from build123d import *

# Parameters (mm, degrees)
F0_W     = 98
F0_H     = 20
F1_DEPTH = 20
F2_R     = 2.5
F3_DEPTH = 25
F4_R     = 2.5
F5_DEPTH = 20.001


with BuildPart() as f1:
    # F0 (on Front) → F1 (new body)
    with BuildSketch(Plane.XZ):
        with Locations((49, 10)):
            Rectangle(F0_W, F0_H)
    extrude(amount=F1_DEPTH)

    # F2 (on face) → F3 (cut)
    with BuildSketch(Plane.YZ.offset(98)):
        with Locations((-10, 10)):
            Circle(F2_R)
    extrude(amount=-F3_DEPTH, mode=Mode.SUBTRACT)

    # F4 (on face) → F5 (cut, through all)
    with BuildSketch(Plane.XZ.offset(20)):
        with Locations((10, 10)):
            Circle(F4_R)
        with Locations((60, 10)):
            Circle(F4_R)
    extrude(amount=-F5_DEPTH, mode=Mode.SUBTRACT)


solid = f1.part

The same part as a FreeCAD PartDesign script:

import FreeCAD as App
import Part
import Sketcher
from FreeCAD import Vector

doc = App.newDocument("Part")
params = doc.addObject("Spreadsheet::Sheet", "Params")
for row, (alias, value) in enumerate([
    ("sketch1_width", "98 mm"),
    ("sketch1_height", "20 mm"),
    ("pad1_length", "20 mm"),
    ("sketch2_diameter", "5 mm"),
    ("pocket1_length", "25 mm"),
    ("sketch3_diameter", "5 mm"),
], start=1):
    params.set(f"A{row}", alias)
    params.set(f"B{row}", "=" + value)
    params.setAlias(f"B{row}", alias)

body = doc.addObject("PartDesign::Body", "Body")

# Sketch on XZ plane
sketch1 = doc.addObject("Sketcher::SketchObject", "Sketch")
body.addObject(sketch1)
sketch1.AttachmentSupport = (doc.XZ_Plane, [""])
sketch1.MapMode = "FlatFace"
sketch1.addGeometry([
    Part.LineSegment(Vector(0, 20, 0), Vector(0, 0, 0)),
    Part.LineSegment(Vector(0, 0, 0), Vector(98, 0, 0)),
    Part.LineSegment(Vector(98, 0, 0), Vector(98, 20, 0)),
    Part.LineSegment(Vector(98, 20, 0), Vector(0, 20, 0)),
], False)
sketch1.addConstraint([
    Sketcher.Constraint("Coincident", 0, 2, 1, 1),
    Sketcher.Constraint("Coincident", 1, 2, 2, 1),
    Sketcher.Constraint("Coincident", 2, 2, 3, 1),
    Sketcher.Constraint("Coincident", 3, 2, 0, 1),
    Sketcher.Constraint("Vertical", 0),
    Sketcher.Constraint("Horizontal", 1),
    Sketcher.Constraint("Vertical", 2),
    Sketcher.Constraint("Horizontal", 3),
    Sketcher.Constraint("Coincident", 0, 2, -1, 1),
    Sketcher.Constraint("DistanceX", 1, 1, 1, 2, 98.0),
    Sketcher.Constraint("DistanceY", 0, 2, 0, 1, 20.0),
])
sketch1.setExpression("Constraints[9]", "Params.sketch1_width")
sketch1.setExpression("Constraints[10]", "Params.sketch1_height")
pad1 = doc.addObject("PartDesign::Pad", "Pad")
body.addObject(pad1)
pad1.Profile = sketch1
pad1.setExpression("Length", "Params.pad1_length")

# Sketch on YZ plane
sketch2 = doc.addObject("Sketcher::SketchObject", "Sketch001")
body.addObject(sketch2)
sketch2.AttachmentSupport = (doc.YZ_Plane, [""])
sketch2.MapMode = "FlatFace"
sketch2.AttachmentOffset = App.Placement(Vector(0, 0, 98), App.Rotation())
sketch2.addGeometry(Part.Circle(Vector(-10, 10, 0), Vector(0, 0, 1), 2.5), False)
sketch2.addConstraint([
    Sketcher.Constraint("Diameter", 0, 5.0),
    Sketcher.Constraint("DistanceX", 0, 3, -1, 1, 10.0),
    Sketcher.Constraint("DistanceY", -1, 1, 0, 3, 10.0),
])
sketch2.setExpression("Constraints[0]", "Params.sketch2_diameter")
pocket1 = doc.addObject("PartDesign::Pocket", "Pocket")
body.addObject(pocket1)
pocket1.Profile = sketch2
pocket1.setExpression("Length", "Params.pocket1_length")

# Sketch on XZ plane
sketch3 = doc.addObject("Sketcher::SketchObject", "Sketch002")
body.addObject(sketch3)
sketch3.AttachmentSupport = (doc.XZ_Plane, [""])
sketch3.MapMode = "FlatFace"
sketch3.AttachmentOffset = App.Placement(Vector(0, 0, 20), App.Rotation())
sketch3.addGeometry([
    Part.Circle(Vector(10, 10, 0), Vector(0, 0, 1), 2.5),
    Part.Circle(Vector(60, 10, 0), Vector(0, 0, 1), 2.5),
], False)
sketch3.addConstraint([
    Sketcher.Constraint("Equal", 0, 1),
    Sketcher.Constraint("Horizontal", 0, 3, 1, 3),
    Sketcher.Constraint("Diameter", 0, 5.0),
    Sketcher.Constraint("DistanceX", -1, 1, 0, 3, 10.0),
    Sketcher.Constraint("DistanceY", -1, 1, 0, 3, 10.0),
    Sketcher.Constraint("DistanceX", -1, 1, 1, 3, 60.0),
])
sketch3.setExpression("Constraints[2]", "Params.sketch3_diameter")
pocket2 = doc.addObject("PartDesign::Pocket", "Pocket001")
body.addObject(pocket2)
pocket2.Profile = sketch3
pocket2.Type = "ThroughAll"

doc.recompute()
